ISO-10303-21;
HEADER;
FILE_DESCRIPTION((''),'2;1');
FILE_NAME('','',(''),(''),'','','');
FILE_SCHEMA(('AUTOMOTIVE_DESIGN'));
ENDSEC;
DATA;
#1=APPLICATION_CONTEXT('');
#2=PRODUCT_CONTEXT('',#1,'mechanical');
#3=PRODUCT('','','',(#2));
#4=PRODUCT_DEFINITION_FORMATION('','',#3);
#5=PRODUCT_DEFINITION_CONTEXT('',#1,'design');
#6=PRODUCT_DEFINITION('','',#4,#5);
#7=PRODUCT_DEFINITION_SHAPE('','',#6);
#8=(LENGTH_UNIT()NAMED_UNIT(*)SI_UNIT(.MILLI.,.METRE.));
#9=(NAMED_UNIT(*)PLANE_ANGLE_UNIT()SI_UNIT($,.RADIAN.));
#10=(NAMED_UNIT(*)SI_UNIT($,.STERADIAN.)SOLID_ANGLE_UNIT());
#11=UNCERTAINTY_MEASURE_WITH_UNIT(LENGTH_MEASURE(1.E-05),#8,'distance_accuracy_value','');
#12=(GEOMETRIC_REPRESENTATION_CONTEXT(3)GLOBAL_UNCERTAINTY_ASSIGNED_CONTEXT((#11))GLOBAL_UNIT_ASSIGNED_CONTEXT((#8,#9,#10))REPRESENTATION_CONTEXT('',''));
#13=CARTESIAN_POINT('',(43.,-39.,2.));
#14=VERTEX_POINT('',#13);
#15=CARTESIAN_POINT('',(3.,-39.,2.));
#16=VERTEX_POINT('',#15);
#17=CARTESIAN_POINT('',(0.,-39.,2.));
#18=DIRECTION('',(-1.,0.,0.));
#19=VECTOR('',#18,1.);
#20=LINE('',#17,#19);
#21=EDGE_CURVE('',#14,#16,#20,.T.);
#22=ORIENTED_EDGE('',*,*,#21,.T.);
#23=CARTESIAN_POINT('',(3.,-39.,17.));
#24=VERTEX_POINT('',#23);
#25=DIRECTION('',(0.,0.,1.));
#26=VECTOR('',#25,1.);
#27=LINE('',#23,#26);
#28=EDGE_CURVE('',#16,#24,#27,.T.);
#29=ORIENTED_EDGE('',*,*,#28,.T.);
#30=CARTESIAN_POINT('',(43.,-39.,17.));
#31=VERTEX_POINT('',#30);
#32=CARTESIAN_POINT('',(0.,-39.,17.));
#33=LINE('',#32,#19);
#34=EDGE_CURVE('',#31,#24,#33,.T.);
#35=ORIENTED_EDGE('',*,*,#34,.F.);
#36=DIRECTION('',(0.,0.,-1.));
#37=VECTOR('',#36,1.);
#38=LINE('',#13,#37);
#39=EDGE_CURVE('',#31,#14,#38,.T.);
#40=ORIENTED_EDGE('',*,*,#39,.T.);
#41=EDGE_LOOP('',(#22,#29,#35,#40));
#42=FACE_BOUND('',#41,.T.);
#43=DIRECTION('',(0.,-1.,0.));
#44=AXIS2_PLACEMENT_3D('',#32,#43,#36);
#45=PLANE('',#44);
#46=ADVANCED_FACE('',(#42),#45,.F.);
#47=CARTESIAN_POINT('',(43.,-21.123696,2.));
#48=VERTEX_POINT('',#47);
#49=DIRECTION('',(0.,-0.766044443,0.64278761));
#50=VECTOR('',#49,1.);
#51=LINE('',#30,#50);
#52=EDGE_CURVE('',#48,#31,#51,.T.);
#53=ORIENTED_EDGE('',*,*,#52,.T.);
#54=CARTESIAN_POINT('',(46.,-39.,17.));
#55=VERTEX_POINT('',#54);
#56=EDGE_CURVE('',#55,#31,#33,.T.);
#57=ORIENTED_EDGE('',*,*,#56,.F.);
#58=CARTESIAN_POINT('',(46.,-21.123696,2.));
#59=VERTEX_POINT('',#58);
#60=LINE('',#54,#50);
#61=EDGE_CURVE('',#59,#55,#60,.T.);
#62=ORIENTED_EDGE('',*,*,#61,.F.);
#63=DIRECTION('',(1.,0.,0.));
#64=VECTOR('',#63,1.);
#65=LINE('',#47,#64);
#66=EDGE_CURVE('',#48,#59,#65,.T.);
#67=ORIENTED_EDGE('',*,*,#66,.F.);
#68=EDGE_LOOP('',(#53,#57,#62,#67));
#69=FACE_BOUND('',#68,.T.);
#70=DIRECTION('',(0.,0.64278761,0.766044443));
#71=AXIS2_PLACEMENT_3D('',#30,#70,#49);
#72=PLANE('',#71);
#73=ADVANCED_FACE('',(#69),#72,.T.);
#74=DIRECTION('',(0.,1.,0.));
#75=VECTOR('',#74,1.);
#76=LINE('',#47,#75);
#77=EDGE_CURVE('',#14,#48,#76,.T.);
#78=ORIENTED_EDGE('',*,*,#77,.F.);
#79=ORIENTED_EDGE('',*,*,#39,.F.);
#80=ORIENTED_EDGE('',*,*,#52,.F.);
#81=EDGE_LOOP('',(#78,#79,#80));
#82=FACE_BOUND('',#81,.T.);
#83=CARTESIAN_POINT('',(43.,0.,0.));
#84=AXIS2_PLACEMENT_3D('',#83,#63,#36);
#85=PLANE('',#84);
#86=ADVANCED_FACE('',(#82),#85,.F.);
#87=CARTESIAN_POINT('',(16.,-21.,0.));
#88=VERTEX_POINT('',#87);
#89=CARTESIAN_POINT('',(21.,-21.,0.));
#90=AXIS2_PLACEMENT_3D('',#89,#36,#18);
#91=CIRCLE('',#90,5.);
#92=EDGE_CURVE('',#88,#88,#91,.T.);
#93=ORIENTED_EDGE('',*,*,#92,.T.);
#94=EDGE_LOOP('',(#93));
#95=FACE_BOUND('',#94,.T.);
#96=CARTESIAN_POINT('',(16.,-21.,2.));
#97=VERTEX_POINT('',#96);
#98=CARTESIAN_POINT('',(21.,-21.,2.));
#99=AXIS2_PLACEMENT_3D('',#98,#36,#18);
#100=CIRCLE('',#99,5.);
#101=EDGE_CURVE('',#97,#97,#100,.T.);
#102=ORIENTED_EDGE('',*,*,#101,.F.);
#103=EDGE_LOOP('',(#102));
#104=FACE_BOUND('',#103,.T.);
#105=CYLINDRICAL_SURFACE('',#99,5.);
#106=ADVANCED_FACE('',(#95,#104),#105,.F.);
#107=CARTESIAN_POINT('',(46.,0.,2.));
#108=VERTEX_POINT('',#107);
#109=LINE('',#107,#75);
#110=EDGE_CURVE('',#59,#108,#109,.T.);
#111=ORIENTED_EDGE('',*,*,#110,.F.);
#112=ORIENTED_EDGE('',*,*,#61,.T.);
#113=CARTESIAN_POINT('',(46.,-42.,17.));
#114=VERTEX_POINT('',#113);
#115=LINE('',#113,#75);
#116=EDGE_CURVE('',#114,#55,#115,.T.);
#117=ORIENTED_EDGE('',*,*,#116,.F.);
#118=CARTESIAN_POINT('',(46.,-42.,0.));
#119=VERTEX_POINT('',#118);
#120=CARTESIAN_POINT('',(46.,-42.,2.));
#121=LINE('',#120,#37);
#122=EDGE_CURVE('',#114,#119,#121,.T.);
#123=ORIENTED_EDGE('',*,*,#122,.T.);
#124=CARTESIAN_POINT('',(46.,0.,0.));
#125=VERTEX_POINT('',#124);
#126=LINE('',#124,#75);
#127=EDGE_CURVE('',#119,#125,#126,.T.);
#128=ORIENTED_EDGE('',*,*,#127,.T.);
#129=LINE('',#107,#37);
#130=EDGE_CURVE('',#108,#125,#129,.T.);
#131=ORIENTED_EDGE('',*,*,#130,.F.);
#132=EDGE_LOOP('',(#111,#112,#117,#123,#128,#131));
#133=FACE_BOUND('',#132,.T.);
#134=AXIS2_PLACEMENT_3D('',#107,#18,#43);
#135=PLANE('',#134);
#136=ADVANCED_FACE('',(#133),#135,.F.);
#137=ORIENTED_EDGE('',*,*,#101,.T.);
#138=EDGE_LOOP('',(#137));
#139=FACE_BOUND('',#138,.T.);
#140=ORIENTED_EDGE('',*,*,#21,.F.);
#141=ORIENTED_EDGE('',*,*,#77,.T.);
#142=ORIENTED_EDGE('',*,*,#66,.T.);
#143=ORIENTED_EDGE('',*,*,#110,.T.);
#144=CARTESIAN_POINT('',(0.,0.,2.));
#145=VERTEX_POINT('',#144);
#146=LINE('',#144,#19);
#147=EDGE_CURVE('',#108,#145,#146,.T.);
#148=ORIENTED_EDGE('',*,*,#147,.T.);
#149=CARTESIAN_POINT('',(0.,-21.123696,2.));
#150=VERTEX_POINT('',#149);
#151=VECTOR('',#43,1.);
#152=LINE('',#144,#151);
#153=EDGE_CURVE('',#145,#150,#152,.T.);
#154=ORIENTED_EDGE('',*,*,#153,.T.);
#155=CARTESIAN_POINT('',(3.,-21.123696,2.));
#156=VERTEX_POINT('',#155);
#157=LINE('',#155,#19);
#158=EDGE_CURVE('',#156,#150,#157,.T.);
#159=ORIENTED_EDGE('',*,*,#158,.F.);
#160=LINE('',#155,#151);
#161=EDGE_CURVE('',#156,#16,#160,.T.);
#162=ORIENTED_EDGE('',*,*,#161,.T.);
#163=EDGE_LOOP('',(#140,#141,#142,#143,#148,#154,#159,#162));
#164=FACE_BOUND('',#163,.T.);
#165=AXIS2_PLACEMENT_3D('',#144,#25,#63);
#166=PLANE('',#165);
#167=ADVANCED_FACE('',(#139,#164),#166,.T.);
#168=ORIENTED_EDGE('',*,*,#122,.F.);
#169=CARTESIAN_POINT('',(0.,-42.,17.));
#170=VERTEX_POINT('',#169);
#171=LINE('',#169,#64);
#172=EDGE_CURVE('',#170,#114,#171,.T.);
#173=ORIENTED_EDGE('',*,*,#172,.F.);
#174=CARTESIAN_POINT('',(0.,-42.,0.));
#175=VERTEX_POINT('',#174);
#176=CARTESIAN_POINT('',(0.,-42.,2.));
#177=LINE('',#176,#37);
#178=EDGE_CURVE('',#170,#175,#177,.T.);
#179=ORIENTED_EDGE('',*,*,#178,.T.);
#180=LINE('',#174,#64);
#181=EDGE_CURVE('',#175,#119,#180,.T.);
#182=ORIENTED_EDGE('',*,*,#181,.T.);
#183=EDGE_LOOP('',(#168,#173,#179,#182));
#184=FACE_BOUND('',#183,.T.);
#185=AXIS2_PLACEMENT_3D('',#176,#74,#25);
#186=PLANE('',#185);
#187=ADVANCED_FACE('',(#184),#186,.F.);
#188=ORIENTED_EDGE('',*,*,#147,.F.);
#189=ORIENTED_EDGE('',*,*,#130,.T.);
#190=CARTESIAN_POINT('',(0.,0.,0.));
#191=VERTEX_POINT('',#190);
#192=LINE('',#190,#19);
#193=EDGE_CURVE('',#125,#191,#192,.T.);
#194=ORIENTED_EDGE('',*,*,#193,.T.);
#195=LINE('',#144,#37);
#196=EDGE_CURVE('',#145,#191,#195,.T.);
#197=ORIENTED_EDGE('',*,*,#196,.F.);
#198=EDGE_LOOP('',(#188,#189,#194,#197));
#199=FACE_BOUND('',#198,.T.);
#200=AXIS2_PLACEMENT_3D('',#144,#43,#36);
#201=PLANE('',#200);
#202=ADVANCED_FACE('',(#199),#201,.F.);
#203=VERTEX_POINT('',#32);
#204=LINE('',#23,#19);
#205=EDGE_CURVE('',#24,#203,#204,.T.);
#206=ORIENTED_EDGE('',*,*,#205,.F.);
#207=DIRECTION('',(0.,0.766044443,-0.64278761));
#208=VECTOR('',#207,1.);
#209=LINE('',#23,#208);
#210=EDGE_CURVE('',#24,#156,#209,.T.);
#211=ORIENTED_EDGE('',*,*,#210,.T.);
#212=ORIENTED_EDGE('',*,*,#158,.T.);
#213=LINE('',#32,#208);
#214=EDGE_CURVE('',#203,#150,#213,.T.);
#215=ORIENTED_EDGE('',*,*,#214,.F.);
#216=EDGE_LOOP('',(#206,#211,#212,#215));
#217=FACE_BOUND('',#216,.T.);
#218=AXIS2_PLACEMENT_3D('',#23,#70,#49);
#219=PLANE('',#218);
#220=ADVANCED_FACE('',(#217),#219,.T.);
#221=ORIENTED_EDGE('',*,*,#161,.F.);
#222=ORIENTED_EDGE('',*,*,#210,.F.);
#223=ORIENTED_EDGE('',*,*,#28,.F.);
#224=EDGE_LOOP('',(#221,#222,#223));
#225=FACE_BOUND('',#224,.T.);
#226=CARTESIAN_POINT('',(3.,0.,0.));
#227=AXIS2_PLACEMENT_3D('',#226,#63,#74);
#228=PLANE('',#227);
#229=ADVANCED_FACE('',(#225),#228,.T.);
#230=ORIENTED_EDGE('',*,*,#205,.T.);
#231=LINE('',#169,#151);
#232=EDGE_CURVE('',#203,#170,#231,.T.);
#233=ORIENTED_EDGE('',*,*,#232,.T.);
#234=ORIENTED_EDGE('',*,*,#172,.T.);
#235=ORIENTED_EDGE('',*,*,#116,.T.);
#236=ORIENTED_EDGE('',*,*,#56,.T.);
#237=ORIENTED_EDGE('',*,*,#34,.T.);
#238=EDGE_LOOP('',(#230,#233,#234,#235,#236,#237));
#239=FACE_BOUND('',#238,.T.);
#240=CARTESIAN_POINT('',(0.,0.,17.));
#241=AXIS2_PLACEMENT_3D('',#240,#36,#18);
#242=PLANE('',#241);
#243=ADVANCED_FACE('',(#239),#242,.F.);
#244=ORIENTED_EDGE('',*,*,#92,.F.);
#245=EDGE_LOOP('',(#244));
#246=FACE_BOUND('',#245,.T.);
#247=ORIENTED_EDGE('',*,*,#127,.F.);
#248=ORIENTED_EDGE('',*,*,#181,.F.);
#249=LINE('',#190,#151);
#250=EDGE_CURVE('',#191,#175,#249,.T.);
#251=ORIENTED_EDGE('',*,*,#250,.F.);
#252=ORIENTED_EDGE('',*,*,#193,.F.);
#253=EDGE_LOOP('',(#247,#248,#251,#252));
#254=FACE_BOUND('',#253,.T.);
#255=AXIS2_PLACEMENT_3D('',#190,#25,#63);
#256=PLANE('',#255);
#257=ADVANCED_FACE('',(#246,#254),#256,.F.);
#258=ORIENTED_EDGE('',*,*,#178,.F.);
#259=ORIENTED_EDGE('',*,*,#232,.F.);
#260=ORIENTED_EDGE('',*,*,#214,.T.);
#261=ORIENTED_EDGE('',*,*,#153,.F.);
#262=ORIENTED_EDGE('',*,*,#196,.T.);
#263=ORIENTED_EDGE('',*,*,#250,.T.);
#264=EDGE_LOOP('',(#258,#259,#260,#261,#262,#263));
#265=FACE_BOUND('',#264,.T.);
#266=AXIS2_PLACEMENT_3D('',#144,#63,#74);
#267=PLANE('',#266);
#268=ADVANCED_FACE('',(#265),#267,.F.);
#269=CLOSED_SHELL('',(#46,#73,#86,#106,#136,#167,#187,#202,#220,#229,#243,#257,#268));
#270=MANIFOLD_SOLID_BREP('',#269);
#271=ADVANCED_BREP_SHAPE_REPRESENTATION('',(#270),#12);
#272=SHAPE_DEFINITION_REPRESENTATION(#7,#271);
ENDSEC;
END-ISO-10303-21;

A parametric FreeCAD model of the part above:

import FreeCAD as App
import Part
import Sketcher
Q = App.Units.Quantity


def add_polygon(sketch, points):
    """Adds a closed chain of lines whose ends are joined by coincident constraints."""
    first, n = sketch.GeometryCount, len(points)
    for a, b in zip(points, points[1:] + points[:1]):
        sketch.addGeometry(Part.LineSegment(App.Vector(*a, 0), App.Vector(*b, 0)), False)
    for i in range(n):
        sketch.addConstraint(Sketcher.Constraint("Coincident", first + i, 2, first + (i + 1) % n, 1))

doc = App.newDocument("Part")
body = doc.addObject("PartDesign::Body", "Body")

# Sketch on XY plane
sketch1 = body.newObject("Sketcher::SketchObject", "Sketch")
sketch1.AttachmentSupport = (doc.getObject("XY_Plane"), [""])
sketch1.MapMode = "FlatFace"
add_polygon(sketch1, [(0, 0), (0, -42), (46, -42), (46, 0)])  # lines 0-3
sketch1.addConstraint(Sketcher.Constraint("Vertical", 0))
sketch1.addConstraint(Sketcher.Constraint("Horizontal", 1))
sketch1.addConstraint(Sketcher.Constraint("Vertical", 2))
sketch1.addConstraint(Sketcher.Constraint("Horizontal", 3))
sketch1.addConstraint(Sketcher.Constraint("Coincident", 3, 2, -1, 1))
sketch1.addConstraint(Sketcher.Constraint("DistanceX", 1, 1, 1, 2, 46.0))
sketch1.addConstraint(Sketcher.Constraint("DistanceY", 0, 2, 0, 1, 42.0))
pad1 = body.newObject("PartDesign::Pad", "Pad")
pad1.Profile = sketch1
pad1.Length = 2

# Sketch on XY plane
sketch2 = body.newObject("Sketcher::SketchObject", "Sketch001")
sketch2.AttachmentSupport = (doc.getObject("XY_Plane"), [""])
sketch2.MapMode = "FlatFace"
sketch2.AttachmentOffset = App.Placement(App.Vector(0, 0, 2), App.Rotation())
add_polygon(sketch2, [(0, -39), (0, -42), (46, -42), (46, -39)])  # lines 0-3
sketch2.addConstraint(Sketcher.Constraint("Vertical", 0))
sketch2.addConstraint(Sketcher.Constraint("Horizontal", 1))
sketch2.addConstraint(Sketcher.Constraint("Vertical", 2))
sketch2.addConstraint(Sketcher.Constraint("Horizontal", 3))
sketch2.addConstraint(Sketcher.Constraint("PointOnObject", 0, 2, -2))
sketch2.addConstraint(Sketcher.Constraint("DistanceX", 1, 1, 1, 2, 46.0))
sketch2.addConstraint(Sketcher.Constraint("DistanceY", 0, 2, 0, 1, 3.0))
sketch2.addConstraint(Sketcher.Constraint("DistanceY", 0, 2, -1, 1, 42.0))
pad2 = body.newObject("PartDesign::Pad", "Pad001")
pad2.Profile = sketch2
pad2.Length = 15

# Sketch on XY plane
sketch3 = body.newObject("Sketcher::SketchObject", "Sketch002")
sketch3.AttachmentSupport = (doc.getObject("XY_Plane"), [""])
sketch3.MapMode = "FlatFace"
sketch3.addGeometry(Part.Circle(App.Vector(21, -21, 0), App.Vector(0, 0, 1), 5), False)
sketch3.addConstraint(Sketcher.Constraint("Diameter", 0, 10.0))
sketch3.addConstraint(Sketcher.Constraint("DistanceX", -1, 1, 0, 3, 21.0))
sketch3.addConstraint(Sketcher.Constraint("DistanceY", 0, 3, -1, 1, 21.0))
pocket1 = body.newObject("PartDesign::Pocket", "Pocket")
pocket1.Profile = sketch3
pocket1.Length = 2
pocket1.Reversed = True

# Sketch on YZ plane
sketch4 = body.newObject("Sketcher::SketchObject", "Sketch003")
sketch4.AttachmentSupport = (doc.getObject("YZ_Plane"), [""])
sketch4.MapMode = "FlatFace"
add_polygon(sketch4, [(-39, 17), (-21, 2), (-39, 2)])  # lines 0-2
sketch4.addConstraint(Sketcher.Constraint("Horizontal", 1))
sketch4.addConstraint(Sketcher.Constraint("Vertical", 2))
sketch4.addConstraint(Sketcher.Constraint("DistanceY", 2, 1, 2, 2, 15.0))
sketch4.addConstraint(Sketcher.Constraint("Angle", 0, Q("-40 deg")))
sketch4.addConstraint(Sketcher.Constraint("DistanceY", -1, 1, 0, 2, 2.0))
sketch4.addConstraint(Sketcher.Constraint("DistanceX", 1, 2, -1, 1, 39.0))
pad3 = body.newObject("PartDesign::Pad", "Pad002")
pad3.Profile = sketch4
pad3.Length = 3

# Sketch on YZ plane
sketch5 = body.newObject("Sketcher::SketchObject", "Sketch004")
sketch5.AttachmentSupport = (doc.getObject("YZ_Plane"), [""])
sketch5.MapMode = "FlatFace"
sketch5.AttachmentOffset = App.Placement(App.Vector(0, 0, 46), App.Rotation())
add_polygon(sketch5, [(-21, 2), (-39, 17), (-39, 2)])  # lines 0-2
sketch5.addConstraint(Sketcher.Constraint("Vertical", 1))
sketch5.addConstraint(Sketcher.Constraint("Horizontal", 2))
sketch5.addConstraint(Sketcher.Constraint("DistanceY", 1, 2, 1, 1, 15.0))
sketch5.addConstraint(Sketcher.Constraint("Angle", 0, Q("140 deg")))
sketch5.addConstraint(Sketcher.Constraint("DistanceX", 0, 2, -1, 1, 39.0))
sketch5.addConstraint(Sketcher.Constraint("DistanceY", -1, 1, 0, 2, 17.0))
pad4 = body.newObject("PartDesign::Pad", "Pad003")
pad4.Profile = sketch5
pad4.Length = 3
pad4.Reversed = True

doc.recompute()
